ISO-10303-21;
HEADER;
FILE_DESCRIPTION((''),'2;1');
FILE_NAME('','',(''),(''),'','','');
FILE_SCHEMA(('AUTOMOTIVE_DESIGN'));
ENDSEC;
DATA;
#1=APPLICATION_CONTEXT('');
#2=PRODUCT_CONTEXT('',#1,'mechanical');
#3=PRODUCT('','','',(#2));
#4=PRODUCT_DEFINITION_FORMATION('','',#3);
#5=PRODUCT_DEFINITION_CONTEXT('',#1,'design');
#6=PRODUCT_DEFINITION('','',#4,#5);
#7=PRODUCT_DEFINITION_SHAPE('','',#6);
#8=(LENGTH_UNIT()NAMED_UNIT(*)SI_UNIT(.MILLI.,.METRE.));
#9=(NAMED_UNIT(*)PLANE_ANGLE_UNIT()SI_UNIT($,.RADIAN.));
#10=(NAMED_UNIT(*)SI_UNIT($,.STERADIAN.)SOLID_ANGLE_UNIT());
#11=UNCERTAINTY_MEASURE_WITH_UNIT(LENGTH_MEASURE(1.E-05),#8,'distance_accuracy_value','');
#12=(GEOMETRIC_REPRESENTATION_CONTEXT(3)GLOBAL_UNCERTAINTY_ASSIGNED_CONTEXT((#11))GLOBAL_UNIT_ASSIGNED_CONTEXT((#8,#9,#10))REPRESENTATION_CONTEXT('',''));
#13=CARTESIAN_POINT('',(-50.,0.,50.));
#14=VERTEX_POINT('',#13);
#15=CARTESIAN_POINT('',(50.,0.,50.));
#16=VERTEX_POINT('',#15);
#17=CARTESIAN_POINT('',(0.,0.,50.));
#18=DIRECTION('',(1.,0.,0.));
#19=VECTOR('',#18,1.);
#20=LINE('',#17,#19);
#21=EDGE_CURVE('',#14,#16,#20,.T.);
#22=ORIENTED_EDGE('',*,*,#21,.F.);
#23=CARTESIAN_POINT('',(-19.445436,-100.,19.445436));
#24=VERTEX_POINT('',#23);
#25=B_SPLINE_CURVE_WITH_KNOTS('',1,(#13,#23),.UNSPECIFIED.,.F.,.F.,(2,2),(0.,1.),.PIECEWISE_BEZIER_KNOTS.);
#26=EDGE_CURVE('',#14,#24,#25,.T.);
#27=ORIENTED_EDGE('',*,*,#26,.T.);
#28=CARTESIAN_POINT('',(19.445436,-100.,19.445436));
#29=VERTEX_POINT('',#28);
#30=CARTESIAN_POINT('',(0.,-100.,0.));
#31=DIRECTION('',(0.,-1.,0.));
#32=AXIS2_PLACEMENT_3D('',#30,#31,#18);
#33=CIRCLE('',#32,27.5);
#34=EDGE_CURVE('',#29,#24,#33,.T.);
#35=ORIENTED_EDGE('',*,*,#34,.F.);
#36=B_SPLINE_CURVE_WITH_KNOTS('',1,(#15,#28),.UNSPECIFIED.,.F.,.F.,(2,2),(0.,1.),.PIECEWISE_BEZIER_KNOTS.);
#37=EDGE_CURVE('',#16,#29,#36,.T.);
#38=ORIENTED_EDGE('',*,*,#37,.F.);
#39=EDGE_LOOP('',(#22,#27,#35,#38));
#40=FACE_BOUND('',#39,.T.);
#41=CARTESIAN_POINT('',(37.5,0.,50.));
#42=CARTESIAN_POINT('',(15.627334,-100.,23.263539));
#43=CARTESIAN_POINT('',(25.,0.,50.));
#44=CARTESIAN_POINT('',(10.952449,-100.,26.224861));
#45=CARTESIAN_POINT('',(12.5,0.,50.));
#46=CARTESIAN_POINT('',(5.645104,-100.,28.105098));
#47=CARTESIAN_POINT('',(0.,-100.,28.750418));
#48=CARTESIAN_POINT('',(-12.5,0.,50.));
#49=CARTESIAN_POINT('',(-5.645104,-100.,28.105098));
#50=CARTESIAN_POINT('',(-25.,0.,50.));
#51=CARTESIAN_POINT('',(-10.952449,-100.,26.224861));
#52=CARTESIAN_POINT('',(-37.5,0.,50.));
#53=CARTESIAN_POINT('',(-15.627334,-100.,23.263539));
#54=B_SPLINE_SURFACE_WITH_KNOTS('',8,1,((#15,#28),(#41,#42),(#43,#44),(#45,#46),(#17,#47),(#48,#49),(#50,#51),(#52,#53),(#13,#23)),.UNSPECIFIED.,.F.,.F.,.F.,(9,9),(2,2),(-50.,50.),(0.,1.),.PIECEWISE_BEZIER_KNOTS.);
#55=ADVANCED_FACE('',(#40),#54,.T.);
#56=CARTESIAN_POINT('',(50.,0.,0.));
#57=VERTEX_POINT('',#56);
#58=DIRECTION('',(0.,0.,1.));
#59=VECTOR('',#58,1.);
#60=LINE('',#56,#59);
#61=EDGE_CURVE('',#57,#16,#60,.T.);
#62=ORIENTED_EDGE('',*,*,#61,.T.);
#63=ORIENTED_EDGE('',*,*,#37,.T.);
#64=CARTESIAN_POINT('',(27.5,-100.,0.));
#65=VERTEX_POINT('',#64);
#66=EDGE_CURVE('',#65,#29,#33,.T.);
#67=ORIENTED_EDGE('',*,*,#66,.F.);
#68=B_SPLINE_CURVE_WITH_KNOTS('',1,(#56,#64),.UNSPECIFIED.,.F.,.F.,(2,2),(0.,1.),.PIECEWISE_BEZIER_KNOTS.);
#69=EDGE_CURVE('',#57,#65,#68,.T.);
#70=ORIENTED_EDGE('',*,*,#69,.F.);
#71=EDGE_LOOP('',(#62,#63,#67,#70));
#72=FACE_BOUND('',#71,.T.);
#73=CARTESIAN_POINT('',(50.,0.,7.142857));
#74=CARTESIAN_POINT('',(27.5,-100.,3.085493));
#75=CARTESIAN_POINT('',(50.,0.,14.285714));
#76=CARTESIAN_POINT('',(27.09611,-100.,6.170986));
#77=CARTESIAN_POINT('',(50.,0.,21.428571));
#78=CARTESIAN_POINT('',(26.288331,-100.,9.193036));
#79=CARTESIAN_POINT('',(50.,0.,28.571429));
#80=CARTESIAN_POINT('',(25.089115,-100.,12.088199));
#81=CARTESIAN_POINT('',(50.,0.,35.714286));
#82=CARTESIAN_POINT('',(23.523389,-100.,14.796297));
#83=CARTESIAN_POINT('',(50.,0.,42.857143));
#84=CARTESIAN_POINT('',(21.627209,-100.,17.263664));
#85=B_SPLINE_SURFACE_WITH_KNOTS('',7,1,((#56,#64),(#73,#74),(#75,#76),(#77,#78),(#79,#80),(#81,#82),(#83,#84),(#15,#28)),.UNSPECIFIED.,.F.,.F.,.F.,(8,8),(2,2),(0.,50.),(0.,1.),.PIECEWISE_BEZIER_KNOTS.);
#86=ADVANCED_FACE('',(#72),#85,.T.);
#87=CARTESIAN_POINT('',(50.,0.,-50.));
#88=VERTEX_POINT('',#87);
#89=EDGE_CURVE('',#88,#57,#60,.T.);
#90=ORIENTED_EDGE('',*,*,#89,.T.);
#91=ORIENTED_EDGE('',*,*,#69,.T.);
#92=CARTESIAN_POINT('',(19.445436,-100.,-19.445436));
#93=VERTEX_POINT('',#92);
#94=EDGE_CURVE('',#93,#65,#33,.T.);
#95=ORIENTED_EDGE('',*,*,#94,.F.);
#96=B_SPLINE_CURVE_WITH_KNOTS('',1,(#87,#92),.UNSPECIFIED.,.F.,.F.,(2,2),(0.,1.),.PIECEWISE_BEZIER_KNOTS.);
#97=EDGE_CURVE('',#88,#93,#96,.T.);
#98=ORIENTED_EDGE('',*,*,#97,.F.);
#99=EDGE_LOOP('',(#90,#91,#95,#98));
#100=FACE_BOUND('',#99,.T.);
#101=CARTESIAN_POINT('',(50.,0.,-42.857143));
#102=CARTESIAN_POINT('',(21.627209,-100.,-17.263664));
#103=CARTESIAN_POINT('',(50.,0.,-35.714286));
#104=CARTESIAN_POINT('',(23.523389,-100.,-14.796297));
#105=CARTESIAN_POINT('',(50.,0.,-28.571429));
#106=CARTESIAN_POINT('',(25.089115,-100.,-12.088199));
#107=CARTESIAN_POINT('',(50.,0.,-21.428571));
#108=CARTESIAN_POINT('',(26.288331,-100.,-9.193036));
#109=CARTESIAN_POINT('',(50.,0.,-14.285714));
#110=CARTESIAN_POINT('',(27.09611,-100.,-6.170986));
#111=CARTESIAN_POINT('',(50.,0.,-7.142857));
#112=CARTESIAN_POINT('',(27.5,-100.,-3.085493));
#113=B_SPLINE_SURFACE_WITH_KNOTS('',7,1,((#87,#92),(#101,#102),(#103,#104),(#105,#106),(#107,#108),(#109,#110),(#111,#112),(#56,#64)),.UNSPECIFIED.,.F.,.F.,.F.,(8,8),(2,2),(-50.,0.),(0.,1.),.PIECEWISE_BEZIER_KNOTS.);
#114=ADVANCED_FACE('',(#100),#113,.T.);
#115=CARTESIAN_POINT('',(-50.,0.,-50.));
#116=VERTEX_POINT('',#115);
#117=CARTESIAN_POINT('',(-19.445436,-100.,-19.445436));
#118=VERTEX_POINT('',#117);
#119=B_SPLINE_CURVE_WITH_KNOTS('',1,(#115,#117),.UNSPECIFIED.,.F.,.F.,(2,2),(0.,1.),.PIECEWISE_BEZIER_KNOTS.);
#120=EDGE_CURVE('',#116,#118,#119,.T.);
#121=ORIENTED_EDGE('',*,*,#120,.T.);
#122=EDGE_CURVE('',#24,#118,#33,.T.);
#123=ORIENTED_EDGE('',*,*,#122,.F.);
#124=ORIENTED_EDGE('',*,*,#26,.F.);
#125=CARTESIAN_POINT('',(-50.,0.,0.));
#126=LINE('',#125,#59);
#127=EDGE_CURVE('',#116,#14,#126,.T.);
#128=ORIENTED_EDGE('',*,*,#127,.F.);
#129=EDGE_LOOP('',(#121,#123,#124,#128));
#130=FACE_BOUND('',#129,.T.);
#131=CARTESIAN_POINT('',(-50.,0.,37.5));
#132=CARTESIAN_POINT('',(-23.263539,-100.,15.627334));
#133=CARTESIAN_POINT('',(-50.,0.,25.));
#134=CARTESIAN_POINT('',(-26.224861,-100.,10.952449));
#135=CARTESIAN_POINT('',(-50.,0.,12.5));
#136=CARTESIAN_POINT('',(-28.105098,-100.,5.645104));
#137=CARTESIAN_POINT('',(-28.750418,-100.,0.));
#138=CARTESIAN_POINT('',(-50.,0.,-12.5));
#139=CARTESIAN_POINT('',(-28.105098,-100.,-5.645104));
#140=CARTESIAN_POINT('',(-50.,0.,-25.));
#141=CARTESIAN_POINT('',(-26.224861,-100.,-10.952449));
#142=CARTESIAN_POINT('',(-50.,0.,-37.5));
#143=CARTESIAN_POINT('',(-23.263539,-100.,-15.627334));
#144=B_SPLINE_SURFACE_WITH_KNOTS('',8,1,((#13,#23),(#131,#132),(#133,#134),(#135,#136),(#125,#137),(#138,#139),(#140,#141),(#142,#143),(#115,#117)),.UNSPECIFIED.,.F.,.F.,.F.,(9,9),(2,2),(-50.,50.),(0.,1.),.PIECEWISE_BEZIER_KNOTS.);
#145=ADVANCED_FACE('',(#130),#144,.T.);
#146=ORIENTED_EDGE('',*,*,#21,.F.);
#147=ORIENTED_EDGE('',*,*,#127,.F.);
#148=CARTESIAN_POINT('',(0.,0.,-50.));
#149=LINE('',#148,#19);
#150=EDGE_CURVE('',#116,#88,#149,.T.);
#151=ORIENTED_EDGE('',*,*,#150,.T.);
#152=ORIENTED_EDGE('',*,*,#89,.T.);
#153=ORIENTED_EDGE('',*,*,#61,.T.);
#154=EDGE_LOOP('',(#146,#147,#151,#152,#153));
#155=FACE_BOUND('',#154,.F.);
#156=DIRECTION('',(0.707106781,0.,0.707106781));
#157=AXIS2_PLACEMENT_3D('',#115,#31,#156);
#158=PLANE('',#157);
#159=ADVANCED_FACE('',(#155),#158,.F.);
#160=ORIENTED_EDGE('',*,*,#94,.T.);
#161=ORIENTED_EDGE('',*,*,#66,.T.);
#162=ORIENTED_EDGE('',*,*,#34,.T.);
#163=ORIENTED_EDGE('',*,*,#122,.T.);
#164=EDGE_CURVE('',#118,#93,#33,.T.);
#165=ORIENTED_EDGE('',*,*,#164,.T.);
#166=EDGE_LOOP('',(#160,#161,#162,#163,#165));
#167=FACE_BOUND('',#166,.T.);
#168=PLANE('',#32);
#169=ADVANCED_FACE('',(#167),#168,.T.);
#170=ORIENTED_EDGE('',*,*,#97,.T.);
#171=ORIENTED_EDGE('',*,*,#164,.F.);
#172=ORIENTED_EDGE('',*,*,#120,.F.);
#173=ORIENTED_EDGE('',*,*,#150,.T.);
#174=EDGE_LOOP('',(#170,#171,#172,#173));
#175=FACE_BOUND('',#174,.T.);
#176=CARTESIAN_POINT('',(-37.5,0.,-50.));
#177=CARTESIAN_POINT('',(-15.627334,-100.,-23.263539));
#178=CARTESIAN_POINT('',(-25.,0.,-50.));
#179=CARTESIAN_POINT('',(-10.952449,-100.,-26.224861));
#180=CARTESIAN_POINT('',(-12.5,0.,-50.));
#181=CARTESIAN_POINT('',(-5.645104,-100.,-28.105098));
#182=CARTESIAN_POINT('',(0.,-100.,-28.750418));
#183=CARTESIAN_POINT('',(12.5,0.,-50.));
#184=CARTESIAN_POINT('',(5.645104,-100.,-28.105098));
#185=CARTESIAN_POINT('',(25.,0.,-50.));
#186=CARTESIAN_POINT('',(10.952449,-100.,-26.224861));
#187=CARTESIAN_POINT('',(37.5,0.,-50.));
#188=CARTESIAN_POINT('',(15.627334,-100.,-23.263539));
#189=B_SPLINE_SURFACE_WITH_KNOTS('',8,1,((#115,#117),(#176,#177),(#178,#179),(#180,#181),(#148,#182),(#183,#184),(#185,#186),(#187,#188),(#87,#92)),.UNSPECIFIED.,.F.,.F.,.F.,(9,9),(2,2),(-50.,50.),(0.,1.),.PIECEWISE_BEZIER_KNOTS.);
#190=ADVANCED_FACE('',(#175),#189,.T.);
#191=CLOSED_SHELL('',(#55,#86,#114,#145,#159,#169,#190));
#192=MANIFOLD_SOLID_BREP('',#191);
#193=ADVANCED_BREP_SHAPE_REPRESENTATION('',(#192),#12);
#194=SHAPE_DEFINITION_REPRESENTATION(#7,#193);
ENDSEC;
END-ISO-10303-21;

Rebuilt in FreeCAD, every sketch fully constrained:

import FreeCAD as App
import Part
import Sketcher

V = App.Vector


def add_polygon(sketch, points):
    """Adds a closed chain of lines whose ends are joined by coincident constraints."""
    first, n = sketch.GeometryCount, len(points)
    for a, b in zip(points, points[1:] + points[:1]):
        sketch.addGeometry(Part.LineSegment(App.Vector(*a, 0), App.Vector(*b, 0)), False)
    for i in range(n):
        sketch.addConstraint(Sketcher.Constraint("Coincident", first + i, 2, first + (i + 1) % n, 1))

doc = App.newDocument("Part")
body = doc.addObject("PartDesign::Body", "Body")

sketch1 = doc.addObject("Sketcher::SketchObject", "Sketch")
body.addObject(sketch1)
sketch1.AttachmentSupport = (doc.XZ_Plane, [""])
sketch1.MapMode = "FlatFace"
add_polygon(sketch1, [(-50, 50), (-50, -50), (50, -50), (50, 50)])
sketch1.addConstraint([
    Sketcher.Constraint("Vertical", 0),
    Sketcher.Constraint("Horizontal", 1),
    Sketcher.Constraint("Vertical", 2),
    Sketcher.Constraint("Horizontal", 3),
    Sketcher.Constraint("Symmetric", 0, 2, 2, 2, -1, 1),
    Sketcher.Constraint("Equal", 3, 0),
    Sketcher.Constraint("DistanceX", 1, 1, 1, 2, 100.0),
])

sketch2 = doc.addObject("Sketcher::SketchObject", "Sketch001")
body.addObject(sketch2)
sketch2.AttachmentSupport = (doc.XZ_Plane, [""])
sketch2.MapMode = "FlatFace"
sketch2.AttachmentOffset = App.Placement(V(0, 0, 100), App.Rotation())
sketch2.addGeometry(Part.Circle(V(0, 0, 0), V(0, 0, 1), 27.5), False)
sketch2.addConstraint([
    Sketcher.Constraint("Coincident", 0, 3, -1, 1),
    Sketcher.Constraint("Diameter", 0, 55.0),
])

additiveloft = doc.addObject("PartDesign::AdditiveLoft", "AdditiveLoft")
body.addObject(additiveloft)
additiveloft.Profile = sketch1
additiveloft.Sections = [sketch2]

doc.recompute()
